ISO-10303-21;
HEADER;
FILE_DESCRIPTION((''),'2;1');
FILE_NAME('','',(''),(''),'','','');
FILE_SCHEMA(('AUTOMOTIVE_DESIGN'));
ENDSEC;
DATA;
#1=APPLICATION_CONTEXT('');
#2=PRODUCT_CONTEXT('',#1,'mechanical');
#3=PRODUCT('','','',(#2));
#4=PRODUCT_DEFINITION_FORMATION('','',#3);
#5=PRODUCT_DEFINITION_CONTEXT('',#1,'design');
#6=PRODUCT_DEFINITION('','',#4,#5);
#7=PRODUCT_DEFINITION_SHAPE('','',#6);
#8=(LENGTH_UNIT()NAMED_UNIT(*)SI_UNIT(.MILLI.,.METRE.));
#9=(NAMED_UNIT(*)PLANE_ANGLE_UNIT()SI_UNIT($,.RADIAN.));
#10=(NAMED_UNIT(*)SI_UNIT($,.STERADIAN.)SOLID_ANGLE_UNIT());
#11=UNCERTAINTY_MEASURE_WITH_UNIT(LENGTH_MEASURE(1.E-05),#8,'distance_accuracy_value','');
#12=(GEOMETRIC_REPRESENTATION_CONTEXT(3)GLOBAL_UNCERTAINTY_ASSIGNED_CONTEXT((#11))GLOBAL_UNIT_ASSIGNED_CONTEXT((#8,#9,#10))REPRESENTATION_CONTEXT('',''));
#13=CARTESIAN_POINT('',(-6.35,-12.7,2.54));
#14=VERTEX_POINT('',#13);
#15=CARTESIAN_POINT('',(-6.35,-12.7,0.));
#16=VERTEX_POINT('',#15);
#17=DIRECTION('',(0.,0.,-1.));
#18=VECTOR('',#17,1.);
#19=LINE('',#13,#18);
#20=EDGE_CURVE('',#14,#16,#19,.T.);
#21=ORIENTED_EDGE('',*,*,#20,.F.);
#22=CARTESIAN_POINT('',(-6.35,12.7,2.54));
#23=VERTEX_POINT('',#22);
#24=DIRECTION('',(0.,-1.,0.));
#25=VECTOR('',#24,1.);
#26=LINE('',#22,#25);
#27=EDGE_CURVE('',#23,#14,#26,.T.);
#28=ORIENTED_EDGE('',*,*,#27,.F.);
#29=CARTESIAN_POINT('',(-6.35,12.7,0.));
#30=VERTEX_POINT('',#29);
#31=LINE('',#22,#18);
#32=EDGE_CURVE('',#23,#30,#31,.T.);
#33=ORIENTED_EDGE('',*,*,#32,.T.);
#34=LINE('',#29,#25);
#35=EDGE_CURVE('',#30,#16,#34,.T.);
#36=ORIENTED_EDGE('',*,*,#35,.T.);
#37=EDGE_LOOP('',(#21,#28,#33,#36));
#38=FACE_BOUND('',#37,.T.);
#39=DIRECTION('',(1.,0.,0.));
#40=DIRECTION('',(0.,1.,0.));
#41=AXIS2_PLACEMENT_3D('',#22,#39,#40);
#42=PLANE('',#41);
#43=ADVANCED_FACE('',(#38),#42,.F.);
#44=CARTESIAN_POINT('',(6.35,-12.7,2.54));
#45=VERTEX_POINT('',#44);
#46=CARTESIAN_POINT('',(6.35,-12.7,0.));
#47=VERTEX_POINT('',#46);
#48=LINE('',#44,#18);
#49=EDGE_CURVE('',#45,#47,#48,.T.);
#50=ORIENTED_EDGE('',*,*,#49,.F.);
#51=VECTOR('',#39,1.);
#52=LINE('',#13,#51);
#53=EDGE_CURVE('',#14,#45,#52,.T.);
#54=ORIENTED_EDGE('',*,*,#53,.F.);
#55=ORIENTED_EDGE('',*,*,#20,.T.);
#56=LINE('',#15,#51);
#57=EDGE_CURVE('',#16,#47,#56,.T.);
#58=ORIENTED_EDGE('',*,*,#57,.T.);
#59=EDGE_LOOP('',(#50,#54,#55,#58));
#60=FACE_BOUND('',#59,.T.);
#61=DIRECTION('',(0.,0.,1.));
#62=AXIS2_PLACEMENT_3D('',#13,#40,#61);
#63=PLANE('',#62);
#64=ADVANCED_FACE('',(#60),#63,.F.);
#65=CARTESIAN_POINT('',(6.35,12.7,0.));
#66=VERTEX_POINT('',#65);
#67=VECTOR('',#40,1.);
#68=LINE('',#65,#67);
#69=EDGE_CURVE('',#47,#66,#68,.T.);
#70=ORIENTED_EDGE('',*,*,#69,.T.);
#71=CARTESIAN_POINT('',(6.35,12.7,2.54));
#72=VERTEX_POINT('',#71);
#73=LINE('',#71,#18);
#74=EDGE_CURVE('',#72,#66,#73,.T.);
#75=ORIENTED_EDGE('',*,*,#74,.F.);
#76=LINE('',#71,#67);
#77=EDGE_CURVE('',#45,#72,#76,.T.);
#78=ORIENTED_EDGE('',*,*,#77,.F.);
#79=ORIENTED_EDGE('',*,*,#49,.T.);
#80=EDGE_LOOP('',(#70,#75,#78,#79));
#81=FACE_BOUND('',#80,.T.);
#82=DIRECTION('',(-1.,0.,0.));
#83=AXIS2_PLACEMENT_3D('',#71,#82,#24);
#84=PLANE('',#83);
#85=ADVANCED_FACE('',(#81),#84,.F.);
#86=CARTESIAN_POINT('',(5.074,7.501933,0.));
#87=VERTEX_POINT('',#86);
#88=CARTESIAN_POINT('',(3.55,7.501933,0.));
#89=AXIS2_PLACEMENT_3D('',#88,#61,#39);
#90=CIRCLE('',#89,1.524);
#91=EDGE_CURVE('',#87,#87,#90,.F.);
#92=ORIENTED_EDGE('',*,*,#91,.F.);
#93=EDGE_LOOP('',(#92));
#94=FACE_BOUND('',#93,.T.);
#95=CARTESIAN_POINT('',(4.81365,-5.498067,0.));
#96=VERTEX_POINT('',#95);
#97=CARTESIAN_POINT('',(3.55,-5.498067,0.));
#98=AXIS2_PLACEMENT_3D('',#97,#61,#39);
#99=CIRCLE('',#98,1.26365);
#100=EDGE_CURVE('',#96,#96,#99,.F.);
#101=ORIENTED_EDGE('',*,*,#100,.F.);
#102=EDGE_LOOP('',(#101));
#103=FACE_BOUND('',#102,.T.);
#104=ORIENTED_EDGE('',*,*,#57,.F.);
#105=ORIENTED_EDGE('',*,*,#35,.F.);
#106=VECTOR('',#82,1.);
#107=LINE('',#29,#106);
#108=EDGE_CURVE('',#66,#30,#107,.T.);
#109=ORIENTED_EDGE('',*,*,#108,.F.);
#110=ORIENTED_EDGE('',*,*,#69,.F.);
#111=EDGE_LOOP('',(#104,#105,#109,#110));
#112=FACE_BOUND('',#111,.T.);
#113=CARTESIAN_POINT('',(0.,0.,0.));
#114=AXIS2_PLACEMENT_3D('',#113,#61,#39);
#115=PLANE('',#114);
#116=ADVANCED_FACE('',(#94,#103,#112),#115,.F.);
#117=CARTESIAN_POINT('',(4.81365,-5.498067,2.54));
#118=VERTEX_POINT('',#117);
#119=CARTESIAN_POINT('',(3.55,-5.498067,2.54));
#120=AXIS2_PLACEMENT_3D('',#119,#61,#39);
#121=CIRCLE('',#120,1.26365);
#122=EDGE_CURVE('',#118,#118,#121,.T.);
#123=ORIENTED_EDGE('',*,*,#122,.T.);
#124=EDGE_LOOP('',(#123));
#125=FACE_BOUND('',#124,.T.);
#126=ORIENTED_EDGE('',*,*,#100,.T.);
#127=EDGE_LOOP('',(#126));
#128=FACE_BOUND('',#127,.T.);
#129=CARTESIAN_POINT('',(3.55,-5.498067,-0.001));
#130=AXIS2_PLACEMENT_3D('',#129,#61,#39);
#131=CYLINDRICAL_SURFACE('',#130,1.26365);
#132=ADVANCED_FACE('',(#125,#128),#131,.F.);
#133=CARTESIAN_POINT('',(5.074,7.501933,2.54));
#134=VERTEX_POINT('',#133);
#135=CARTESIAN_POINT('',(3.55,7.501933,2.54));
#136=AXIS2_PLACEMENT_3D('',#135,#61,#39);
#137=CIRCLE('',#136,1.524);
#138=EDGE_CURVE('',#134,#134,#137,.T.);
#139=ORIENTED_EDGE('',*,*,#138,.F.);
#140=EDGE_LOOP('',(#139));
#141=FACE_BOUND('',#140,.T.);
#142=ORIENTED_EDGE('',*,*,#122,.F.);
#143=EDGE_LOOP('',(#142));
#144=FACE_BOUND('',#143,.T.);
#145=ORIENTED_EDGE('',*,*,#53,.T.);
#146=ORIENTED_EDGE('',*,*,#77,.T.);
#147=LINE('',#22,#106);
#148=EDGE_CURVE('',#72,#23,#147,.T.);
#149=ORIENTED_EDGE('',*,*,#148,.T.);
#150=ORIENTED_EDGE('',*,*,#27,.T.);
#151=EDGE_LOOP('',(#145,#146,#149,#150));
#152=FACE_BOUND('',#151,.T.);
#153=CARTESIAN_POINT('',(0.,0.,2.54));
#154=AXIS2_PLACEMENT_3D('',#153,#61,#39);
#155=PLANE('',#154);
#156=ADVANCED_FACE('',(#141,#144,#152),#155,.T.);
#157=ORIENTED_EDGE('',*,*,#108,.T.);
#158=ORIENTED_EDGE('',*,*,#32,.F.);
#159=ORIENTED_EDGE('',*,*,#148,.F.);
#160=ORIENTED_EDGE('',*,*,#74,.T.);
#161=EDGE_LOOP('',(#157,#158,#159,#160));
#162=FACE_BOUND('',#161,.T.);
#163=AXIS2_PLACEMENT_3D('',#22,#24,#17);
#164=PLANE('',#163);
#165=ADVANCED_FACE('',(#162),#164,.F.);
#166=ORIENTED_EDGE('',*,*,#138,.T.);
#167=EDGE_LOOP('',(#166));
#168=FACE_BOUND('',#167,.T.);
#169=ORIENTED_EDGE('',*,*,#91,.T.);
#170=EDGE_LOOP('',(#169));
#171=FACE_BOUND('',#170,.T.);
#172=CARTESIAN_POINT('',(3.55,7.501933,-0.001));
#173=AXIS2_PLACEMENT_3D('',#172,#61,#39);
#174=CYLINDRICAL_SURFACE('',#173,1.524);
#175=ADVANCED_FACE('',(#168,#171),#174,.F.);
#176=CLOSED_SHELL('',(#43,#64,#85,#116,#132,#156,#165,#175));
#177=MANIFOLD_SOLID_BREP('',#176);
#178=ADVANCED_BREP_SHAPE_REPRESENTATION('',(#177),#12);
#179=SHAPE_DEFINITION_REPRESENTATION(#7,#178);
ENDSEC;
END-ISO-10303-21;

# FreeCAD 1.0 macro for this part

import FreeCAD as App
import Part
import Sketcher
Q = App.Units.Quantity

doc = App.newDocument("Part")
body = doc.addObject("PartDesign::Body", "Body")

# Sketch on XY plane
sketch1 = body.newObject("Sketcher::SketchObject", "Sketch")
sketch1.AttachmentSupport = (doc.getObject("XY_Plane"), [""])
sketch1.MapMode = "FlatFace"
sketch1.addGeometry(Part.LineSegment(App.Vector(-6, 13, 0), App.Vector(-6, -13, 0)), False)
sketch1.addGeometry(Part.LineSegment(App.Vector(-6, -13, 0), App.Vector(6, -13, 0)), False)
sketch1.addGeometry(Part.LineSegment(App.Vector(6, -13, 0), App.Vector(6, 13, 0)), False)
sketch1.addGeometry(Part.LineSegment(App.Vector(6, 13, 0), App.Vector(-6, 13, 0)), False)
sketch1.addConstraint(Sketcher.Constraint("Coincident", 0, 2, 1, 1))
sketch1.addConstraint(Sketcher.Constraint("Coincident", 1, 2, 2, 1))
sketch1.addConstraint(Sketcher.Constraint("Coincident", 2, 2, 3, 1))
sketch1.addConstraint(Sketcher.Constraint("Coincident", 3, 2, 0, 1))
sketch1.addConstraint(Sketcher.Constraint("Vertical", 0))
sketch1.addConstraint(Sketcher.Constraint("Horizontal", 1))
sketch1.addConstraint(Sketcher.Constraint("Vertical", 2))
sketch1.addConstraint(Sketcher.Constraint("Horizontal", 3))
sketch1.addConstraint(Sketcher.Constraint("Symmetric", 0, 2, 2, 2, -1, 1))
sketch1.addConstraint(Sketcher.Constraint("DistanceY", 0, 2, 0, 1, Q("1 in")))
sketch1.addConstraint(Sketcher.Constraint("DistanceX", 1, 1, 1, 2, Q("0.5 in")))
pad1 = body.newObject("PartDesign::Pad", "Pad")
pad1.Profile = sketch1
pad1.Length = Q("0.1 in")

# Sketch on XY plane
sketch2 = body.newObject("Sketcher::SketchObject", "Sketch001")
sketch2.AttachmentSupport = (doc.getObject("XY_Plane"), [""])
sketch2.MapMode = "FlatFace"
sketch2.AttachmentOffset = App.Placement(App.Vector(0, 0, 0.1 * 25.4), App.Rotation())
sketch2.addGeometry(Part.Circle(App.Vector(3.5, 7.5, 0), App.Vector(0, 0, 1), 1.5), False)
sketch2.addConstraint(Sketcher.Constraint("Diameter", 0, Q("0.12 in")))
sketch2.addConstraint(Sketcher.Constraint("DistanceX", -1, 1, 0, 3, Q("3.55 mm")))
sketch2.addConstraint(Sketcher.Constraint("DistanceY", -1, 1, 0, 3, Q("7.501933 mm")))
pocket1 = body.newObject("PartDesign::Pocket", "Pocket")
pocket1.Profile = sketch2
pocket1.Type = "UpToFirst"

# Sketch on XY plane
sketch3 = body.newObject("Sketcher::SketchObject", "Sketch002")
sketch3.AttachmentSupport = (doc.getObject("XY_Plane"), [""])
sketch3.MapMode = "FlatFace"
sketch3.AttachmentOffset = App.Placement(App.Vector(0, 0, 0.1 * 25.4), App.Rotation())
sketch3.addGeometry(Part.Circle(App.Vector(3.5, -5.5, 0), App.Vector(0, 0, 1), 1.3), False)
sketch3.addConstraint(Sketcher.Constraint("Diameter", 0, Q("0.0995 in")))
sketch3.addConstraint(Sketcher.Constraint("DistanceX", -1, 1, 0, 3, Q("3.55 mm")))
sketch3.addConstraint(Sketcher.Constraint("DistanceY", 0, 3, -1, 1, Q("5.498067 mm")))
pocket2 = body.newObject("PartDesign::Pocket", "Pocket001")
pocket2.Profile = sketch3
pocket2.Type = "UpToFirst"

doc.recompute()
